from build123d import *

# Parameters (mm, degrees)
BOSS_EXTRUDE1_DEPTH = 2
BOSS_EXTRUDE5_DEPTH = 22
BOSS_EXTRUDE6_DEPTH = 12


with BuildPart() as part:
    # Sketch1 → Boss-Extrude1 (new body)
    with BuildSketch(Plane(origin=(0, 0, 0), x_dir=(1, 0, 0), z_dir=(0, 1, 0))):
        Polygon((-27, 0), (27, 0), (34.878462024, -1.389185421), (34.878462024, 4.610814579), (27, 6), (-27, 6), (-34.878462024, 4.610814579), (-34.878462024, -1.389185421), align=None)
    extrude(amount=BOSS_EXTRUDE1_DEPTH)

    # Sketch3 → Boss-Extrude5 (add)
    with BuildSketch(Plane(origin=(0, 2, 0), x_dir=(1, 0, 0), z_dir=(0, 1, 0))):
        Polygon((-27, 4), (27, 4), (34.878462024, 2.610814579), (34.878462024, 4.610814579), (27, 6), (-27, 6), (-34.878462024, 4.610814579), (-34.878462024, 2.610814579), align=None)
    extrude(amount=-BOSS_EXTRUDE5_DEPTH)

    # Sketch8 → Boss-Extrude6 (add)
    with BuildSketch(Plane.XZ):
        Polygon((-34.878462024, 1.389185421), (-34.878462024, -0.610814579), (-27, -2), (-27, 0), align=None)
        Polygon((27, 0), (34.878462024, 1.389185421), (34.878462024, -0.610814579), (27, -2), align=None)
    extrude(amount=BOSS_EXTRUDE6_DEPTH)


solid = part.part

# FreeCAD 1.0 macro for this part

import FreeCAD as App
import Part
import Sketcher

V = App.Vector
Q = App.Units.Quantity

doc = App.newDocument("Part")
params = doc.addObject("Spreadsheet::Sheet", "Params")
for row, (alias, value) in enumerate([
    ("sketch1_width", "54 mm"),
    ("sketch1_height", "6 mm"),
    ("sketch1_length", "8 mm"),
    ("pad1_length", "2 mm"),
    ("sketch2_width", "54 mm"),
    ("sketch2_height", "2 mm"),
    ("sketch2_length", "8 mm"),
    ("pad2_length", "22 mm"),
    ("sketch3_height", "2 mm"),
    ("sketch3_length", "8 mm"),
    ("pad3_length", "12 mm"),
], start=1):
    params.set(f"A{row}", alias)
    params.set(f"B{row}", "=" + value)
    params.setAlias(f"B{row}", alias)

body = doc.addObject("PartDesign::Body", "Body")

sketch1 = doc.addObject("Sketcher::SketchObject", "Sketch")
body.addObject(sketch1)
sketch1.AttachmentSupport = (doc.XZ_Plane, [""])
sketch1.MapMode = "FlatFace"
sketch1.addGeometry(Part.LineSegment(V(-27, 0, 0), V(27, 0, 0)), False)
sketch1.addGeometry(Part.LineSegment(V(27, 0, 0), V(35, 1, 0)), False)
sketch1.addGeometry(Part.LineSegment(V(35, 1, 0), V(35, -5, 0)), False)
sketch1.addGeometry(Part.LineSegment(V(35, -5, 0), V(27, -6, 0)), False)
sketch1.addGeometry(Part.LineSegment(V(27, -6, 0), V(-27, -6, 0)), False)
sketch1.addGeometry(Part.LineSegment(V(-27, -6, 0), V(-35, -5, 0)), False)
sketch1.addGeometry(Part.LineSegment(V(-35, -5, 0), V(-35, 1, 0)), False)
sketch1.addGeometry(Part.LineSegment(V(-35, 1, 0), V(-27, 0, 0)), False)
sketch1.addConstraint(Sketcher.Constraint("Coincident", 0, 2, 1, 1))
sketch1.addConstraint(Sketcher.Constraint("Coincident", 1, 2, 2, 1))
sketch1.addConstraint(Sketcher.Constraint("Coincident", 2, 2, 3, 1))
sketch1.addConstraint(Sketcher.Constraint("Coincident", 3, 2, 4, 1))
sketch1.addConstraint(Sketcher.Constraint("Coincident", 4, 2, 5, 1))
sketch1.addConstraint(Sketcher.Constraint("Coincident", 5, 2, 6, 1))
sketch1.addConstraint(Sketcher.Constraint("Coincident", 6, 2, 7, 1))
sketch1.addConstraint(Sketcher.Constraint("Coincident", 7, 2, 0, 1))
sketch1.addConstraint(Sketcher.Constraint("Horizontal", 0))
sketch1.addConstraint(Sketcher.Constraint("Vertical", 2))
sketch1.addConstraint(Sketcher.Constraint("Horizontal", 4))
sketch1.addConstraint(Sketcher.Constraint("Vertical", 6))
sketch1.addConstraint(Sketcher.Constraint("Symmetric", 0, 2, 7, 2, -1, 1))
sketch1.addConstraint(Sketcher.Constraint("Symmetric", 2, 2, 5, 2, -2))
sketch1.addConstraint(Sketcher.Constraint("Parallel", 1, 3))
sketch1.addConstraint(Sketcher.Constraint("Parallel", 5, 7))
sketch1.addConstraint(Sketcher.Constraint("Horizontal", 1, 2, 6, 2))
sketch1.addConstraint(Sketcher.Constraint("Vertical", 0, 2, 3, 2))
sketch1.addConstraint(Sketcher.Constraint("DistanceX", 0, 1, 0, 2, Q("54 mm")))
sketch1.addConstraint(Sketcher.Constraint("DistanceY", 2, 2, 2, 1, Q("6 mm")))
sketch1.addConstraint(Sketcher.Constraint("Angle", 1, Q("10 deg")))
sketch1.addConstraint(Sketcher.Constraint("Distance", 1, Q("8 mm")))
sketch1.setExpression("Constraints[18]", "Params.sketch1_width")
sketch1.setExpression("Constraints[19]", "Params.sketch1_height")
sketch1.setExpression("Constraints[21]", "Params.sketch1_length")
pad1 = doc.addObject("PartDesign::Pad", "Pad")
body.addObject(pad1)
pad1.Profile = sketch1
pad1.setExpression("Length", "Params.pad1_length")
pad1.Reversed = True

sketch2 = doc.addObject("Sketcher::SketchObject", "Sketch001")
body.addObject(sketch2)
sketch2.AttachmentSupport = (doc.XZ_Plane, [""])
sketch2.MapMode = "FlatFace"
sketch2.AttachmentOffset = App.Placement(V(0, 0, -2), App.Rotation())
sketch2.addGeometry(Part.LineSegment(V(-27, -4, 0), V(27, -4, 0)), False)
sketch2.addGeometry(Part.LineSegment(V(27, -4, 0), V(34.9, -2.6, 0)), False)
sketch2.addGeometry(Part.LineSegment(V(34.9, -2.6, 0), V(34.9, -4.6, 0)), False)
sketch2.addGeometry(Part.LineSegment(V(34.9, -4.6, 0), V(27, -6, 0)), False)
sketch2.addGeometry(Part.LineSegment(V(27, -6, 0), V(-27, -6, 0)), False)
sketch2.addGeometry(Part.LineSegment(V(-27, -6, 0), V(-34.9, -4.6, 0)), False)
sketch2.addGeometry(Part.LineSegment(V(-34.9, -4.6, 0), V(-34.9, -2.6, 0)), False)
sketch2.addGeometry(Part.LineSegment(V(-34.9, -2.6, 0), V(-27, -4, 0)), False)
sketch2.addConstraint(Sketcher.Constraint("Coincident", 0, 2, 1, 1))
sketch2.addConstraint(Sketcher.Constraint("Coincident", 1, 2, 2, 1))
sketch2.addConstraint(Sketcher.Constraint("Coincident", 2, 2, 3, 1))
sketch2.addConstraint(Sketcher.Constraint("Coincident", 3, 2, 4, 1))
sketch2.addConstraint(Sketcher.Constraint("Coincident", 4, 2, 5, 1))
sketch2.addConstraint(Sketcher.Constraint("Coincident", 5, 2, 6, 1))
sketch2.addConstraint(Sketcher.Constraint("Coincident", 6, 2, 7, 1))
sketch2.addConstraint(Sketcher.Constraint("Coincident", 7, 2, 0, 1))
sketch2.addConstraint(Sketcher.Constraint("Horizontal", 0))
sketch2.addConstraint(Sketcher.Constraint("Vertical", 2))
sketch2.addConstraint(Sketcher.Constraint("Horizontal", 4))
sketch2.addConstraint(Sketcher.Constraint("Vertical", 6))
sketch2.addConstraint(Sketcher.Constraint("Symmetric", 2, 2, 5, 2, -2))
sketch2.addConstraint(Sketcher.Constraint("Parallel", 1, 3))
sketch2.addConstraint(Sketcher.Constraint("Parallel", 5, 7))
sketch2.addConstraint(Sketcher.Constraint("Horizontal", 1, 2, 6, 2))
sketch2.addConstraint(Sketcher.Constraint("Vertical", 0, 2, 3, 2))
sketch2.addConstraint(Sketcher.Constraint("Equal", 3, 5))
sketch2.addConstraint(Sketcher.Constraint("DistanceX", 0, 1, 0, 2, Q("54 mm")))
sketch2.addConstraint(Sketcher.Constraint("DistanceY", 2, 2, 2, 1, Q("2 mm")))
sketch2.addConstraint(Sketcher.Constraint("Angle", 1, Q("10 deg")))
sketch2.addConstraint(Sketcher.Constraint("Distance", 1, Q("8 mm")))
sketch2.addConstraint(Sketcher.Constraint("DistanceY", 0, 2, -1, 1, Q("4 mm")))
sketch2.setExpression("Constraints[18]", "Params.sketch2_width")
sketch2.setExpression("Constraints[19]", "Params.sketch2_height")
sketch2.setExpression("Constraints[21]", "Params.sketch2_length")
pad2 = doc.addObject("PartDesign::Pad", "Pad001")
body.addObject(pad2)
pad2.Profile = sketch2
pad2.setExpression("Length", "Params.pad2_length")

sketch3 = doc.addObject("Sketcher::SketchObject", "Sketch002")
body.addObject(sketch3)
sketch3.AttachmentSupport = (doc.XZ_Plane, [""])
sketch3.MapMode = "FlatFace"
sketch3.addGeometry(Part.LineSegment(V(-34.9, 1.4, 0), V(-34.9, -0.6, 0)), False)
sketch3.addGeometry(Part.LineSegment(V(-34.9, -0.6, 0), V(-27, -2, 0)), False)
sketch3.addGeometry(Part.LineSegment(V(-27, -2, 0), V(-27, 0, 0)), False)
sketch3.addGeometry(Part.LineSegment(V(-27, 0, 0), V(-34.9, 1.4, 0)), False)
sketch3.addGeometry(Part.LineSegment(V(34.9, 1.4, 0), V(27, 0, 0)), False)
sketch3.addGeometry(Part.LineSegment(V(27, 0, 0), V(27, -2, 0)), False)
sketch3.addGeometry(Part.LineSegment(V(27, -2, 0), V(34.9, -0.6, 0)), False)
sketch3.addGeometry(Part.LineSegment(V(34.9, -0.6, 0), V(34.9, 1.4, 0)), False)
sketch3.addConstraint(Sketcher.Constraint("Coincident", 0, 2, 1, 1))
sketch3.addConstraint(Sketcher.Constraint("Coincident", 1, 2, 2, 1))
sketch3.addConstraint(Sketcher.Constraint("Coincident", 2, 2, 3, 1))
sketch3.addConstraint(Sketcher.Constraint("Coincident", 3, 2, 0, 1))
sketch3.addConstraint(Sketcher.Constraint("Coincident", 4, 2, 5, 1))
sketch3.addConstraint(Sketcher.Constraint("Coincident", 5, 2, 6, 1))
sketch3.addConstraint(Sketcher.Constraint("Coincident", 6, 2, 7, 1))
sketch3.addConstraint(Sketcher.Constraint("Coincident", 7, 2, 4, 1))
sketch3.addConstraint(Sketcher.Constraint("Vertical", 0))
sketch3.addConstraint(Sketcher.Constraint("Vertical", 2))
sketch3.addConstraint(Sketcher.Constraint("Vertical", 5))
sketch3.addConstraint(Sketcher.Constraint("Vertical", 7))
sketch3.addConstraint(Sketcher.Constraint("Symmetric", 2, 2, 4, 2, -1, 1))
sketch3.addConstraint(Sketcher.Constraint("Symmetric", 0, 2, 6, 2, -2))
sketch3.addConstraint(Sketcher.Constraint("PointOnObject", 2, 2, -1))
sketch3.addConstraint(Sketcher.Constraint("Parallel", 1, 3))
sketch3.addConstraint(Sketcher.Constraint("Parallel", 4, 6))
sketch3.addConstraint(Sketcher.Constraint("Horizontal", 1, 2, 5, 2))
sketch3.addConstraint(Sketcher.Constraint("DistanceY", 0, 2, 0, 1, Q("2 mm")))
sketch3.addConstraint(Sketcher.Constraint("Angle", 1, Q("-10 deg")))
sketch3.addConstraint(Sketcher.Constraint("Distance", 1, Q("8 mm")))
sketch3.addConstraint(Sketcher.Constraint("DistanceX", 1, 2, -1, 1, Q("27 mm")))
sketch3.setExpression("Constraints[18]", "Params.sketch3_height")
sketch3.setExpression("Constraints[20]", "Params.sketch3_length")
pad3 = doc.addObject("PartDesign::Pad", "Pad002")
body.addObject(pad3)
pad3.Profile = sketch3
pad3.setExpression("Length", "Params.pad3_length")

doc.recompute()
